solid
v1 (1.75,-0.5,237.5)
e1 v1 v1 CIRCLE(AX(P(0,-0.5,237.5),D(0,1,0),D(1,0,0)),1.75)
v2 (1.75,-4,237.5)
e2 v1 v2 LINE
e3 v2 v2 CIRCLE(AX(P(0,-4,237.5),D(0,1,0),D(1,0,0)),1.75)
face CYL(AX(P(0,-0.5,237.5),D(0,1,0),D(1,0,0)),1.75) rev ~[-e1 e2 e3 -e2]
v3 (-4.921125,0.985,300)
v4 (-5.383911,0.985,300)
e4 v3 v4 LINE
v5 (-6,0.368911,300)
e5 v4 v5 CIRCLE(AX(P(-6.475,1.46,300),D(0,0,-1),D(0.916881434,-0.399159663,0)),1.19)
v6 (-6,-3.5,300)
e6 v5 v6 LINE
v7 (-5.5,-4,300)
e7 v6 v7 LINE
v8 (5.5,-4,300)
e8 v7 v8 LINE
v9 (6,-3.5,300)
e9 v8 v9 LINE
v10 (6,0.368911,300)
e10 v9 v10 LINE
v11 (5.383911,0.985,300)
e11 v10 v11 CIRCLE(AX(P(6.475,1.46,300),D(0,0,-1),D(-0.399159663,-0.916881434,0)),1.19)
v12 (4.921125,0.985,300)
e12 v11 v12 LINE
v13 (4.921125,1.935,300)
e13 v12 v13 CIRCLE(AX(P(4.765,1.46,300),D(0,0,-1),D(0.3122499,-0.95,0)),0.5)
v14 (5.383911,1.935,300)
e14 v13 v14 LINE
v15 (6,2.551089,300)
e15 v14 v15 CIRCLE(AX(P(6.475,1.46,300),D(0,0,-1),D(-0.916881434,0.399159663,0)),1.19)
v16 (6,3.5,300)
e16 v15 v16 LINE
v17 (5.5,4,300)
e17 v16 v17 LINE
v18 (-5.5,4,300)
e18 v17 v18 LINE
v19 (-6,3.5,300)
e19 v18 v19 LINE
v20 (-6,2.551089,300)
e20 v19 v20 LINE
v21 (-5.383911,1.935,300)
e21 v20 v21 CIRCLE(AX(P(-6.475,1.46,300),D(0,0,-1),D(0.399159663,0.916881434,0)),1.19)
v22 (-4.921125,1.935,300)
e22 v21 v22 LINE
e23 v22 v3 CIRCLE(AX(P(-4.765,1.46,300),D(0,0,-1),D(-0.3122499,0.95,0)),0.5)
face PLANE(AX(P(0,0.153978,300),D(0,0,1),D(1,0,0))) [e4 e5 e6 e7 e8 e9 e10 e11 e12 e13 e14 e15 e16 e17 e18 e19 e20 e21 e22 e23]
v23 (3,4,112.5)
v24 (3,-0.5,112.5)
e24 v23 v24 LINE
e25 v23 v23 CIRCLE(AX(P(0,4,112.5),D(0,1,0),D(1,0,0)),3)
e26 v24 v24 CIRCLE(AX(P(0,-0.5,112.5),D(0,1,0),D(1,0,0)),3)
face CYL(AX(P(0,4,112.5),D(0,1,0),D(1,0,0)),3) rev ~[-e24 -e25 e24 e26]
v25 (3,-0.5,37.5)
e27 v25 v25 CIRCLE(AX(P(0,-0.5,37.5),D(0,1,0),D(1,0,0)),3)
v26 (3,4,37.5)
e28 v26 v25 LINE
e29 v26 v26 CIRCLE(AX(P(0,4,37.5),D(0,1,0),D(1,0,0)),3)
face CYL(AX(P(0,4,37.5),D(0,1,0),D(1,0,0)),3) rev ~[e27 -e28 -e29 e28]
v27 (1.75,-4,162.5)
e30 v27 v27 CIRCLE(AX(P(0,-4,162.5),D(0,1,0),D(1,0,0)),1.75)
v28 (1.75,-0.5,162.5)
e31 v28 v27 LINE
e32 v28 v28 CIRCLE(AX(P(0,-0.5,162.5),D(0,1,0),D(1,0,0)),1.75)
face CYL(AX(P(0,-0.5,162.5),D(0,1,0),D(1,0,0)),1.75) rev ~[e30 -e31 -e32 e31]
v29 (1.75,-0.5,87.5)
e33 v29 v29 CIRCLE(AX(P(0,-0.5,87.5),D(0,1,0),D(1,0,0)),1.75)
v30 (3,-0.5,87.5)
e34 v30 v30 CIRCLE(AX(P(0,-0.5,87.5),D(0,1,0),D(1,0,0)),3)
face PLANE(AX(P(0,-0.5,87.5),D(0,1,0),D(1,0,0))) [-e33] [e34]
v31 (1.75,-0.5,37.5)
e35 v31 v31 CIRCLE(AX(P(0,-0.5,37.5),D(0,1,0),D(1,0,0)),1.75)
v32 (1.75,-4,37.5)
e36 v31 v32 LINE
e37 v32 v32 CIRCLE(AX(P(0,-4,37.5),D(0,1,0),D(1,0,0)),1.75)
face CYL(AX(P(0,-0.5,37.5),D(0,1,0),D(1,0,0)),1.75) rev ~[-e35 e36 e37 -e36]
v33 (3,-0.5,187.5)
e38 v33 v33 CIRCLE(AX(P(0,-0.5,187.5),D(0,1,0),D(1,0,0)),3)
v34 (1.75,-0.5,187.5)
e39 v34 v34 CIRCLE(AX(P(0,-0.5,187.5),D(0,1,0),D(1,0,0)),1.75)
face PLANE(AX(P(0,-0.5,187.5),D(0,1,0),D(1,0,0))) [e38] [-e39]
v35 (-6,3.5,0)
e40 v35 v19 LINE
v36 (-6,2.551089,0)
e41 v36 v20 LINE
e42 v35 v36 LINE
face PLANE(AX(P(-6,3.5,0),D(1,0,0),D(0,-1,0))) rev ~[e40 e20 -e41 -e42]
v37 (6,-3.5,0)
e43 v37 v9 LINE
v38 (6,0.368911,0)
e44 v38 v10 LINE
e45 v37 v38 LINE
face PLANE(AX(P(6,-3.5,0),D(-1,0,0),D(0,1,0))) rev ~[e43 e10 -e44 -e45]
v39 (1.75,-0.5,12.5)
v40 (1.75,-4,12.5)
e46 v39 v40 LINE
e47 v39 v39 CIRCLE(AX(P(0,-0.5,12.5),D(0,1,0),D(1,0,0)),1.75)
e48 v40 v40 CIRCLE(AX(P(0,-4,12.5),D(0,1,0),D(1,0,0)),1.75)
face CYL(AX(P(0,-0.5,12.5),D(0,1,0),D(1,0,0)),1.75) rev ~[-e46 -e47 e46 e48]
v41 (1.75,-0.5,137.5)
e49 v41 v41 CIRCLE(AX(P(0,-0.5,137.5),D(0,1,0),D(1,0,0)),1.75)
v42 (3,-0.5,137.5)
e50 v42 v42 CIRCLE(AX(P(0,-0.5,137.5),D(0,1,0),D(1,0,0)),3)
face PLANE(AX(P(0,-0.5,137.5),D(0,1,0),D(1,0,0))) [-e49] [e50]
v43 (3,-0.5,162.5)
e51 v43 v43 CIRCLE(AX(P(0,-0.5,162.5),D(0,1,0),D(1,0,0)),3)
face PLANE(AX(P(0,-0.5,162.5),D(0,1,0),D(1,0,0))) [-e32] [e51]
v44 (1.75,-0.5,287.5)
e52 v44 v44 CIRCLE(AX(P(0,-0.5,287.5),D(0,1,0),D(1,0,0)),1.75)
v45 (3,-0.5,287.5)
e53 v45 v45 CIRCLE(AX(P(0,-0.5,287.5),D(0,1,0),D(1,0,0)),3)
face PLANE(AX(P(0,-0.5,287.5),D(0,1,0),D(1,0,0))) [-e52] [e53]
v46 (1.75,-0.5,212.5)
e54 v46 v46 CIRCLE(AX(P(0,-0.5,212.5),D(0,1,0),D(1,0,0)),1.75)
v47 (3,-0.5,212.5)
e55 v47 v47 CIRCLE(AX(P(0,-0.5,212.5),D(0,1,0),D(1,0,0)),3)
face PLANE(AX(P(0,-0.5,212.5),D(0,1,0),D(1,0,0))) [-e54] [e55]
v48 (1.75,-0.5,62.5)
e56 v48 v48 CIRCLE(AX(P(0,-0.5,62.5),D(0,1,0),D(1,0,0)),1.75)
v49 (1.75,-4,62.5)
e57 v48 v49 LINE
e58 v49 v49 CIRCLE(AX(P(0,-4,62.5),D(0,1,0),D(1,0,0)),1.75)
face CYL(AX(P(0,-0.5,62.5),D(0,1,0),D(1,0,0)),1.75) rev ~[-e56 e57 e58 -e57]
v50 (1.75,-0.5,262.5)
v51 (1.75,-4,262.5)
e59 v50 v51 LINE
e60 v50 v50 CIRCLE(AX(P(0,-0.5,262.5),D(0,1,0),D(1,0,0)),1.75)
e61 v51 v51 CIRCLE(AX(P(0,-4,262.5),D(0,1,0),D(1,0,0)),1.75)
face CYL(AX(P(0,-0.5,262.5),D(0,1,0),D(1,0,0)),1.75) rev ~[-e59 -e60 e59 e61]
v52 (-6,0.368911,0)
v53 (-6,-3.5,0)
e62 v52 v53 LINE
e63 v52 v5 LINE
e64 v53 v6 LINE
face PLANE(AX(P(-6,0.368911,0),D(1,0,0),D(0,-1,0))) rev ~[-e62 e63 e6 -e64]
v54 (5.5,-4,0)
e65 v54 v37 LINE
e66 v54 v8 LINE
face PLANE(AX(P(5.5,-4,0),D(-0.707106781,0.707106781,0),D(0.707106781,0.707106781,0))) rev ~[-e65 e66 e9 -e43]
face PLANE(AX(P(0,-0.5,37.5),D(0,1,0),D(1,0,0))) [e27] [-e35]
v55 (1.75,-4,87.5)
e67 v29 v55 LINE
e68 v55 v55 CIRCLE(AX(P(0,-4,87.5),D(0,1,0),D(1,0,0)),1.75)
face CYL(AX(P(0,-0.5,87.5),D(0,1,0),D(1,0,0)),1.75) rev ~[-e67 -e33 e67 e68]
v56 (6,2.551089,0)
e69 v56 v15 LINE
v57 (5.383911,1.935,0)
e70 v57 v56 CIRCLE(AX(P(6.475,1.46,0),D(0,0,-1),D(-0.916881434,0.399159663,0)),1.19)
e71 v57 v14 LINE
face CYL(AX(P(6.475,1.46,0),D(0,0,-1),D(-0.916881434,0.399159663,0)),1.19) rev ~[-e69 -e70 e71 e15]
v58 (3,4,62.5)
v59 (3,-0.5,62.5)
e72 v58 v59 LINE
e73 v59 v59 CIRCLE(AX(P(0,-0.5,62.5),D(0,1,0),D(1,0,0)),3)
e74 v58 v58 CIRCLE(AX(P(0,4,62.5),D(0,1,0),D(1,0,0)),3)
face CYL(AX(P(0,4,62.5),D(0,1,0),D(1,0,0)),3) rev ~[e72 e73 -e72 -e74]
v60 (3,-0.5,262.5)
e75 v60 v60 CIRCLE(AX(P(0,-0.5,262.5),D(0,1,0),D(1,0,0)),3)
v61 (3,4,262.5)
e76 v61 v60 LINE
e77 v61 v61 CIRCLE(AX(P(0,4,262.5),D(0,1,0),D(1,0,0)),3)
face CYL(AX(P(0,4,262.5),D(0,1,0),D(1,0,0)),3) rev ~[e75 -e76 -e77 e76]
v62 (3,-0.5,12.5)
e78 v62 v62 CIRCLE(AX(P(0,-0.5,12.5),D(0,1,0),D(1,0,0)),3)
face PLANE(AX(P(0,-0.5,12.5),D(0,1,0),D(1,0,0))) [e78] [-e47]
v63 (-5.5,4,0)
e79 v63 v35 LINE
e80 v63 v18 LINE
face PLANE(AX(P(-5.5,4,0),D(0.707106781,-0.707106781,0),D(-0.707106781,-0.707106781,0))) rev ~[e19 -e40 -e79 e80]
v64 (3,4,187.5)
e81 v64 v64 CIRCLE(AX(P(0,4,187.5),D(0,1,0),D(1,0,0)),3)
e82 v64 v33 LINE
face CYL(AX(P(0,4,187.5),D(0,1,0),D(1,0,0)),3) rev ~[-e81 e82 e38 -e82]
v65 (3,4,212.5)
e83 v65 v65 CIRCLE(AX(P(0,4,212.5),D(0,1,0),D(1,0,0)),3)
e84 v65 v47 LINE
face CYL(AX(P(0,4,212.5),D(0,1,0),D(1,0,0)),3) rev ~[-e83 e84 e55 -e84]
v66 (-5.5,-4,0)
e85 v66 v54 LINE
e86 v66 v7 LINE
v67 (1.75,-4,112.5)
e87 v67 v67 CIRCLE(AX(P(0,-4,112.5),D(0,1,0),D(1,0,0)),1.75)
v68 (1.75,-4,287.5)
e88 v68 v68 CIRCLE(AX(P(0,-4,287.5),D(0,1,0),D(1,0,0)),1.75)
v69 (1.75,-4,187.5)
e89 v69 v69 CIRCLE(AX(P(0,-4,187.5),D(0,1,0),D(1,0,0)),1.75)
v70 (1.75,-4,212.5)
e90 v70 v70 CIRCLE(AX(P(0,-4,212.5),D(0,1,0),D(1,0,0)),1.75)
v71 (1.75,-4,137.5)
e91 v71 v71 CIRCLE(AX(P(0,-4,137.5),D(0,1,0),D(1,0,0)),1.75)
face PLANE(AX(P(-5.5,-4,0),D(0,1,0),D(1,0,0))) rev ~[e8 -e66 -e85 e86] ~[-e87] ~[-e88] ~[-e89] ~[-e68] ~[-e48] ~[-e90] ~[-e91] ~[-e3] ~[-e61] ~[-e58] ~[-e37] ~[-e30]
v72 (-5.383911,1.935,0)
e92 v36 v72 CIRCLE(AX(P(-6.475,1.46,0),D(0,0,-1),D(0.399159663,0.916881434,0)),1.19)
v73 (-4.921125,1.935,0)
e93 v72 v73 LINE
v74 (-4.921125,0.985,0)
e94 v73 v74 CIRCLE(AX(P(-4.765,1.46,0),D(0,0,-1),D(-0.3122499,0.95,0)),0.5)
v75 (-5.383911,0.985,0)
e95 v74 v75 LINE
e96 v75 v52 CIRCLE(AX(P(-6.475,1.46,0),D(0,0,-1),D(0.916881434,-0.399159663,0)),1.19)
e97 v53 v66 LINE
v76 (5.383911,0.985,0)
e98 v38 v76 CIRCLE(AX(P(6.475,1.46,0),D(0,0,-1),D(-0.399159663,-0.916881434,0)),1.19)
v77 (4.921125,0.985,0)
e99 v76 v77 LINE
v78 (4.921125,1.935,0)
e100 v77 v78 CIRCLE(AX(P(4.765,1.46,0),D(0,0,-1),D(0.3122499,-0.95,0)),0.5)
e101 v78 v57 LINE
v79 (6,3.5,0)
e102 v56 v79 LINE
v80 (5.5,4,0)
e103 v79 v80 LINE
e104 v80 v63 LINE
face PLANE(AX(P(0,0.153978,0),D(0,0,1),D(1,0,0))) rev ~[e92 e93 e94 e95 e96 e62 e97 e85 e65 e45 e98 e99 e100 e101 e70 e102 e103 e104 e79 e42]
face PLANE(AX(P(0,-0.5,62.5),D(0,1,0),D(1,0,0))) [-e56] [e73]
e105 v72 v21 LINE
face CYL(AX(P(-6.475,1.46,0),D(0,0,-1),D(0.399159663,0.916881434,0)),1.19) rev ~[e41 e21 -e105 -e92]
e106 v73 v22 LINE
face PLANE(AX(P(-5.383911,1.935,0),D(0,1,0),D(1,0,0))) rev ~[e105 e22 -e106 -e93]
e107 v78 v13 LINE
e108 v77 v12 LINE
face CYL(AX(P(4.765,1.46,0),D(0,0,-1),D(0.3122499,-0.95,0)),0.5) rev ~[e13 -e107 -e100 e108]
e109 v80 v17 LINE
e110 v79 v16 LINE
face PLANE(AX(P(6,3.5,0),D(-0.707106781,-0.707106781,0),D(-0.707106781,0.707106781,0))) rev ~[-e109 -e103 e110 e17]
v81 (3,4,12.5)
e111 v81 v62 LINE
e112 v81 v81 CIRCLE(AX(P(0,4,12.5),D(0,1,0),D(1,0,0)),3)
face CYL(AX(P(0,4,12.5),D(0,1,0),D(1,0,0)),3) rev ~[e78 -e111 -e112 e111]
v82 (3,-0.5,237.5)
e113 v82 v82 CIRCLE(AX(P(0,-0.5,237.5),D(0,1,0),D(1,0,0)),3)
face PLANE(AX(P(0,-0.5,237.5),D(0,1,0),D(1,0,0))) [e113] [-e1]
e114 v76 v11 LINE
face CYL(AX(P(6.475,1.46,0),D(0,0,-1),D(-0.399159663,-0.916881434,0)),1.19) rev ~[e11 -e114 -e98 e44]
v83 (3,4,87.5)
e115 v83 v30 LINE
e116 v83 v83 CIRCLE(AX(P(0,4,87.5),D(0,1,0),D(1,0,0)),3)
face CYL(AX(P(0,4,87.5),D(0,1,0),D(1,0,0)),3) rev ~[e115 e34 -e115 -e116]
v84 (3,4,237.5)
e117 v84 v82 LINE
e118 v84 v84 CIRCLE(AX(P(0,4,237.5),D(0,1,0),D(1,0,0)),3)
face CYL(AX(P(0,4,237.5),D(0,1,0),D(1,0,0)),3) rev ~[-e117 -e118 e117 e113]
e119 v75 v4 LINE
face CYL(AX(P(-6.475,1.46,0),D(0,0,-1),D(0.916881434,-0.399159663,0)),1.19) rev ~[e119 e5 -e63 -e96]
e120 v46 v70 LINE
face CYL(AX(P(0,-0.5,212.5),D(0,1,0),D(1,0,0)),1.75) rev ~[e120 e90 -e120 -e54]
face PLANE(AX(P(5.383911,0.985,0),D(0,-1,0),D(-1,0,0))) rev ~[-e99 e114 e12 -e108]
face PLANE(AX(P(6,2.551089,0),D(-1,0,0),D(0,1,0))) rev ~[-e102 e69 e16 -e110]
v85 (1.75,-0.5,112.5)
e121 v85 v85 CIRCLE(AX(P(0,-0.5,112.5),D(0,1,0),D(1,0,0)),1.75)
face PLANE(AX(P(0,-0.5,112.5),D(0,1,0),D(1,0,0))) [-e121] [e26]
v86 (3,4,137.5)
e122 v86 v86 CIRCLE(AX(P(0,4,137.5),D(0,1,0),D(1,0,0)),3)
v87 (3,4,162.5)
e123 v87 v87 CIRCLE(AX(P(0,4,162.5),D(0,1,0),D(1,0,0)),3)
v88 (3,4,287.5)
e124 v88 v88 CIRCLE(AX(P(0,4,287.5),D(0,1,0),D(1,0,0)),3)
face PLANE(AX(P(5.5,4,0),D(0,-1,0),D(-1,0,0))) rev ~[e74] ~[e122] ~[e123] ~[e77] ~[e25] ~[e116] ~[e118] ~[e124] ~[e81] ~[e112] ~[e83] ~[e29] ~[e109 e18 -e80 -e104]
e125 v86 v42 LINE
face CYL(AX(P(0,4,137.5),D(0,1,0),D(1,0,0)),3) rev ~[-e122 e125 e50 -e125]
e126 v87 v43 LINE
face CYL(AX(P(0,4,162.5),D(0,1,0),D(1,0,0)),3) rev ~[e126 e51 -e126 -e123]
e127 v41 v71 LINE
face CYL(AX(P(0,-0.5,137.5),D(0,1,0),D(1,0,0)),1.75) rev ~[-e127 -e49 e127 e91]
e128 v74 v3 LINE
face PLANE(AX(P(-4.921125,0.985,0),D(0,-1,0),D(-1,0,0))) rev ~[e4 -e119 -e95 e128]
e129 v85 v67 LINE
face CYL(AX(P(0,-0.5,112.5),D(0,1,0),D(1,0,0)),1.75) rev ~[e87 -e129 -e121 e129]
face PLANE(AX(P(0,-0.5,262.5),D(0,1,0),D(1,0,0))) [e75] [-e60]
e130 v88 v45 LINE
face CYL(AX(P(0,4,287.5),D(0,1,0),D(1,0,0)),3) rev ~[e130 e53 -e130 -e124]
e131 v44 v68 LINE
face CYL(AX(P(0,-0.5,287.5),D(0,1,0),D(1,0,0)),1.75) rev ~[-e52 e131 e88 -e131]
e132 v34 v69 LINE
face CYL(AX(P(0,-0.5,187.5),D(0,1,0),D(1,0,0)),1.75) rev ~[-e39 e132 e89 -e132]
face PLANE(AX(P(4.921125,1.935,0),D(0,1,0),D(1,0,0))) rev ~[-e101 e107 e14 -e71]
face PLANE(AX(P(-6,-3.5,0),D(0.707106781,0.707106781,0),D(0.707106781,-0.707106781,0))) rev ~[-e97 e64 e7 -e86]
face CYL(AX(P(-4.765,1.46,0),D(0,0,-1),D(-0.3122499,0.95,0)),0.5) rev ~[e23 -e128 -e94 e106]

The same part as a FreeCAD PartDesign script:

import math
import FreeCAD as App
import Part
import Sketcher

V = App.Vector
Q = App.Units.Quantity

doc = App.newDocument("Part")
params = doc.addObject("Spreadsheet::Sheet", "Params")
for row, (alias, value) in enumerate([
    ("sketch1_radius", "0.5 mm"),
    ("sketch1_width", "11 mm"),
    ("sketch1_radius2", "1.19 mm"),
    ("pad1_length", "300 mm"),
    ("sketch2_diameter", "6 mm"),
    ("pocket1_length", "4.5 mm"),
    ("sketch3_diameter", "3.5 mm"),
    ("linearpattern_pitch", "25 mm"),
], start=1):
    params.set(f"A{row}", alias)
    params.set(f"B{row}", "=" + value)
    params.setAlias(f"B{row}", alias)

body = doc.addObject("PartDesign::Body", "Body")

sketch1 = body.newObject("Sketcher::SketchObject", "Sketch")
sketch1.AttachmentSupport = (doc.getObject("XY_Plane"), [""])
sketch1.MapMode = "FlatFace"
sketch1.addGeometry([
    Part.LineSegment(V(6, -3.5, 0), V(6, 0.368911, 0)),
    Part.ArcOfCircle(Part.Circle(V(6.475, 1.46, 0), V(0, 0, 1), 1.19), math.radians(-156.474345), math.radians(-113.525655)),
    Part.LineSegment(V(5.383911, 0.985, 0), V(4.921125, 0.985, 0)),
    Part.ArcOfCircle(Part.Circle(V(4.765, 1.46, 0), V(0, 0, 1), 0.5), math.radians(71.805128), math.radians(288.194872)),
    Part.LineSegment(V(4.921125, 1.935, 0), V(5.383911, 1.935, 0)),
    Part.ArcOfCircle(Part.Circle(V(6.475, 1.46, 0), V(0, 0, 1), 1.19), math.radians(113.525655), math.radians(156.474345)),
    Part.LineSegment(V(6, 2.551089, 0), V(6, 3.5, 0)),
    Part.LineSegment(V(6, 3.5, 0), V(5.5, 4, 0)),
    Part.LineSegment(V(5.5, 4, 0), V(-5.5, 4, 0)),
    Part.LineSegment(V(-5.5, 4, 0), V(-6, 3.5, 0)),
    Part.LineSegment(V(-6, 3.5, 0), V(-6, 2.551089, 0)),
    Part.ArcOfCircle(Part.Circle(V(-6.475, 1.46, 0), V(0, 0, 1), 1.19), math.radians(23.525655), math.radians(66.474345)),
    Part.LineSegment(V(-5.383911, 1.935, 0), V(-4.921125, 1.935, 0)),
    Part.ArcOfCircle(Part.Circle(V(-4.765, 1.46, 0), V(0, 0, 1), 0.5), math.radians(-108.194872), math.radians(108.194872)),
    Part.LineSegment(V(-4.921125, 0.985, 0), V(-5.383911, 0.985, 0)),
    Part.ArcOfCircle(Part.Circle(V(-6.475, 1.46, 0), V(0, 0, 1), 1.19), math.radians(-66.474345), math.radians(-23.525655)),
    Part.LineSegment(V(-6, 0.368911, 0), V(-6, -3.5, 0)),
    Part.LineSegment(V(-6, -3.5, 0), V(-5.5, -4, 0)),
    Part.LineSegment(V(-5.5, -4, 0), V(5.5, -4, 0)),
    Part.LineSegment(V(5.5, -4, 0), V(6, -3.5, 0)),
], False)
sketch1.addConstraint([
    Sketcher.Constraint("Coincident", 0, 2, 1, 2),
    Sketcher.Constraint("Coincident", 1, 1, 2, 1),
    Sketcher.Constraint("Coincident", 2, 2, 3, 2),
    Sketcher.Constraint("Coincident", 3, 1, 4, 1),
    Sketcher.Constraint("Coincident", 4, 2, 5, 2),
    Sketcher.Constraint("Coincident", 5, 1, 6, 1),
    Sketcher.Constraint("Coincident", 6, 2, 7, 1),
    Sketcher.Constraint("Coincident", 7, 2, 8, 1),
    Sketcher.Constraint("Coincident", 8, 2, 9, 1),
    Sketcher.Constraint("Coincident", 9, 2, 10, 1),
    Sketcher.Constraint("Coincident", 10, 2, 11, 2),
    Sketcher.Constraint("Coincident", 11, 1, 12, 1),
    Sketcher.Constraint("Coincident", 12, 2, 13, 2),
    Sketcher.Constraint("Coincident", 13, 1, 14, 1),
    Sketcher.Constraint("Coincident", 14, 2, 15, 2),
    Sketcher.Constraint("Coincident", 15, 1, 16, 1),
    Sketcher.Constraint("Coincident", 16, 2, 17, 1),
    Sketcher.Constraint("Coincident", 17, 2, 18, 1),
    Sketcher.Constraint("Coincident", 18, 2, 19, 1),
    Sketcher.Constraint("Coincident", 19, 2, 0, 1),
    Sketcher.Constraint("Vertical", 0),
    Sketcher.Constraint("Horizontal", 2),
    Sketcher.Constraint("Horizontal", 4),
    Sketcher.Constraint("Vertical", 6),
    Sketcher.Constraint("Horizontal", 8),
    Sketcher.Constraint("Vertical", 10),
    Sketcher.Constraint("Horizontal", 12),
    Sketcher.Constraint("Horizontal", 14),
    Sketcher.Constraint("Vertical", 16),
    Sketcher.Constraint("Horizontal", 18),
    Sketcher.Constraint("Coincident", 5, 3, 1, 3),
    Sketcher.Constraint("Coincident", 15, 3, 11, 3),
    Sketcher.Constraint("Equal", 1, 5),
    Sketcher.Constraint("Equal", 5, 11),
    Sketcher.Constraint("Equal", 3, 13),
    Sketcher.Constraint("Equal", 11, 15),
    Sketcher.Constraint("Symmetric", 6, 2, 16, 2, -1, 1),
    Sketcher.Constraint("Symmetric", 7, 2, 17, 2, -1, 1),
    Sketcher.Constraint("Symmetric", 9, 2, 19, 2, -1, 1),
    Sketcher.Constraint("Symmetric", 1, 3, 11, 3, -2),
    Sketcher.Constraint("Symmetric", 3, 3, 13, 3, -2),
    Sketcher.Constraint("Symmetric", 6, 2, 9, 2, -2),
    Sketcher.Constraint("Perpendicular", 7, 9),
    Sketcher.Constraint("Perpendicular", 17, 19),
    Sketcher.Constraint("Horizontal", 1, 3, 3, 3),
    Sketcher.Constraint("Horizontal", 4, 2, 11, 1),
    Sketcher.Constraint("Horizontal", 2, 2, 13, 1),
    Sketcher.Constraint("Vertical", 2, 2, 3, 1),
    Sketcher.Constraint("Vertical", 8, 2, 17, 2),
    Sketcher.Constraint("Radius", 3, Q("0.5 mm")),
    Sketcher.Constraint("DistanceX", 8, 2, 8, 1, Q("11 mm")),
    Sketcher.Constraint("Radius", 1, Q("1.19 mm")),
    Sketcher.Constraint("DistanceX", -1, 1, 0, 2, Q("6 mm")),
    Sketcher.Constraint("DistanceY", -1, 1, 7, 2, Q("4 mm")),
    Sketcher.Constraint("DistanceY", -1, 1, 1, 3, Q("1.46 mm")),
    Sketcher.Constraint("DistanceX", 3, 3, 1, 3, Q("1.71 mm")),
    Sketcher.Constraint("DistanceX", 11, 3, 3, 3, Q("11.24 mm")),
    Sketcher.Constraint("DistanceY", 2, 2, 3, 1, Q("0.95 mm")),
])
sketch1.setExpression("Constraints[49]", "Params.sketch1_radius")
sketch1.setExpression("Constraints[50]", "Params.sketch1_width")
sketch1.setExpression("Constraints[51]", "Params.sketch1_radius2")
pad1 = body.newObject("PartDesign::Pad", "Pad")
pad1.Profile = sketch1
pad1.setExpression("Length", "Params.pad1_length")

sketch2 = body.newObject("Sketcher::SketchObject", "Sketch001")
sketch2.AttachmentSupport = (doc.getObject("XZ_Plane"), [""])
sketch2.MapMode = "FlatFace"
sketch2.AttachmentOffset = App.Placement(V(0, 0, -4), App.Rotation())
sketch2.addGeometry(Part.Circle(V(0, 12.5, 0), V(0, 0, 1), 3), False)
sketch2.addConstraint([
    Sketcher.Constraint("PointOnObject", 0, 3, -2),
    Sketcher.Constraint("Diameter", 0, Q("6 mm")),
    Sketcher.Constraint("DistanceY", -1, 1, 0, 3, Q("12.5 mm")),
])
sketch2.setExpression("Constraints[1]", "Params.sketch2_diameter")
pocket1 = body.newObject("PartDesign::Pocket", "Pocket")
pocket1.Profile = sketch2
pocket1.setExpression("Length", "Params.pocket1_length")
pocket1.Reversed = True

sketch3 = body.newObject("Sketcher::SketchObject", "Sketch002")
sketch3.AttachmentSupport = (doc.getObject("XZ_Plane"), [""])
sketch3.MapMode = "FlatFace"
sketch3.AttachmentOffset = App.Placement(V(0, 0, 0.5), App.Rotation())
sketch3.addGeometry(Part.Circle(V(0, 12.5, 0), V(0, 0, 1), 1.75), False)
sketch3.addConstraint([
    Sketcher.Constraint("PointOnObject", 0, 3, -2),
    Sketcher.Constraint("Diameter", 0, Q("3.5 mm")),
    Sketcher.Constraint("DistanceY", -1, 1, 0, 3, Q("12.5 mm")),
])
sketch3.setExpression("Constraints[1]", "Params.sketch3_diameter")
pocket2 = body.newObject("PartDesign::Pocket", "Pocket001")
pocket2.Profile = sketch3
pocket2.Type = "ThroughAll"
pocket2.Reversed = True
doc.recompute()

linearpattern = body.newObject("PartDesign::LinearPattern", "LinearPattern")
linearpattern.Originals = [pocket1, pocket2]
linearpattern.Direction = (doc.getObject("Z_Axis"), [""])
linearpattern.Mode = "offset"
linearpattern.setExpression("Offset", "Params.linearpattern_pitch")
linearpattern.Occurrences = 14
body.Tip = linearpattern

doc.recompute()
